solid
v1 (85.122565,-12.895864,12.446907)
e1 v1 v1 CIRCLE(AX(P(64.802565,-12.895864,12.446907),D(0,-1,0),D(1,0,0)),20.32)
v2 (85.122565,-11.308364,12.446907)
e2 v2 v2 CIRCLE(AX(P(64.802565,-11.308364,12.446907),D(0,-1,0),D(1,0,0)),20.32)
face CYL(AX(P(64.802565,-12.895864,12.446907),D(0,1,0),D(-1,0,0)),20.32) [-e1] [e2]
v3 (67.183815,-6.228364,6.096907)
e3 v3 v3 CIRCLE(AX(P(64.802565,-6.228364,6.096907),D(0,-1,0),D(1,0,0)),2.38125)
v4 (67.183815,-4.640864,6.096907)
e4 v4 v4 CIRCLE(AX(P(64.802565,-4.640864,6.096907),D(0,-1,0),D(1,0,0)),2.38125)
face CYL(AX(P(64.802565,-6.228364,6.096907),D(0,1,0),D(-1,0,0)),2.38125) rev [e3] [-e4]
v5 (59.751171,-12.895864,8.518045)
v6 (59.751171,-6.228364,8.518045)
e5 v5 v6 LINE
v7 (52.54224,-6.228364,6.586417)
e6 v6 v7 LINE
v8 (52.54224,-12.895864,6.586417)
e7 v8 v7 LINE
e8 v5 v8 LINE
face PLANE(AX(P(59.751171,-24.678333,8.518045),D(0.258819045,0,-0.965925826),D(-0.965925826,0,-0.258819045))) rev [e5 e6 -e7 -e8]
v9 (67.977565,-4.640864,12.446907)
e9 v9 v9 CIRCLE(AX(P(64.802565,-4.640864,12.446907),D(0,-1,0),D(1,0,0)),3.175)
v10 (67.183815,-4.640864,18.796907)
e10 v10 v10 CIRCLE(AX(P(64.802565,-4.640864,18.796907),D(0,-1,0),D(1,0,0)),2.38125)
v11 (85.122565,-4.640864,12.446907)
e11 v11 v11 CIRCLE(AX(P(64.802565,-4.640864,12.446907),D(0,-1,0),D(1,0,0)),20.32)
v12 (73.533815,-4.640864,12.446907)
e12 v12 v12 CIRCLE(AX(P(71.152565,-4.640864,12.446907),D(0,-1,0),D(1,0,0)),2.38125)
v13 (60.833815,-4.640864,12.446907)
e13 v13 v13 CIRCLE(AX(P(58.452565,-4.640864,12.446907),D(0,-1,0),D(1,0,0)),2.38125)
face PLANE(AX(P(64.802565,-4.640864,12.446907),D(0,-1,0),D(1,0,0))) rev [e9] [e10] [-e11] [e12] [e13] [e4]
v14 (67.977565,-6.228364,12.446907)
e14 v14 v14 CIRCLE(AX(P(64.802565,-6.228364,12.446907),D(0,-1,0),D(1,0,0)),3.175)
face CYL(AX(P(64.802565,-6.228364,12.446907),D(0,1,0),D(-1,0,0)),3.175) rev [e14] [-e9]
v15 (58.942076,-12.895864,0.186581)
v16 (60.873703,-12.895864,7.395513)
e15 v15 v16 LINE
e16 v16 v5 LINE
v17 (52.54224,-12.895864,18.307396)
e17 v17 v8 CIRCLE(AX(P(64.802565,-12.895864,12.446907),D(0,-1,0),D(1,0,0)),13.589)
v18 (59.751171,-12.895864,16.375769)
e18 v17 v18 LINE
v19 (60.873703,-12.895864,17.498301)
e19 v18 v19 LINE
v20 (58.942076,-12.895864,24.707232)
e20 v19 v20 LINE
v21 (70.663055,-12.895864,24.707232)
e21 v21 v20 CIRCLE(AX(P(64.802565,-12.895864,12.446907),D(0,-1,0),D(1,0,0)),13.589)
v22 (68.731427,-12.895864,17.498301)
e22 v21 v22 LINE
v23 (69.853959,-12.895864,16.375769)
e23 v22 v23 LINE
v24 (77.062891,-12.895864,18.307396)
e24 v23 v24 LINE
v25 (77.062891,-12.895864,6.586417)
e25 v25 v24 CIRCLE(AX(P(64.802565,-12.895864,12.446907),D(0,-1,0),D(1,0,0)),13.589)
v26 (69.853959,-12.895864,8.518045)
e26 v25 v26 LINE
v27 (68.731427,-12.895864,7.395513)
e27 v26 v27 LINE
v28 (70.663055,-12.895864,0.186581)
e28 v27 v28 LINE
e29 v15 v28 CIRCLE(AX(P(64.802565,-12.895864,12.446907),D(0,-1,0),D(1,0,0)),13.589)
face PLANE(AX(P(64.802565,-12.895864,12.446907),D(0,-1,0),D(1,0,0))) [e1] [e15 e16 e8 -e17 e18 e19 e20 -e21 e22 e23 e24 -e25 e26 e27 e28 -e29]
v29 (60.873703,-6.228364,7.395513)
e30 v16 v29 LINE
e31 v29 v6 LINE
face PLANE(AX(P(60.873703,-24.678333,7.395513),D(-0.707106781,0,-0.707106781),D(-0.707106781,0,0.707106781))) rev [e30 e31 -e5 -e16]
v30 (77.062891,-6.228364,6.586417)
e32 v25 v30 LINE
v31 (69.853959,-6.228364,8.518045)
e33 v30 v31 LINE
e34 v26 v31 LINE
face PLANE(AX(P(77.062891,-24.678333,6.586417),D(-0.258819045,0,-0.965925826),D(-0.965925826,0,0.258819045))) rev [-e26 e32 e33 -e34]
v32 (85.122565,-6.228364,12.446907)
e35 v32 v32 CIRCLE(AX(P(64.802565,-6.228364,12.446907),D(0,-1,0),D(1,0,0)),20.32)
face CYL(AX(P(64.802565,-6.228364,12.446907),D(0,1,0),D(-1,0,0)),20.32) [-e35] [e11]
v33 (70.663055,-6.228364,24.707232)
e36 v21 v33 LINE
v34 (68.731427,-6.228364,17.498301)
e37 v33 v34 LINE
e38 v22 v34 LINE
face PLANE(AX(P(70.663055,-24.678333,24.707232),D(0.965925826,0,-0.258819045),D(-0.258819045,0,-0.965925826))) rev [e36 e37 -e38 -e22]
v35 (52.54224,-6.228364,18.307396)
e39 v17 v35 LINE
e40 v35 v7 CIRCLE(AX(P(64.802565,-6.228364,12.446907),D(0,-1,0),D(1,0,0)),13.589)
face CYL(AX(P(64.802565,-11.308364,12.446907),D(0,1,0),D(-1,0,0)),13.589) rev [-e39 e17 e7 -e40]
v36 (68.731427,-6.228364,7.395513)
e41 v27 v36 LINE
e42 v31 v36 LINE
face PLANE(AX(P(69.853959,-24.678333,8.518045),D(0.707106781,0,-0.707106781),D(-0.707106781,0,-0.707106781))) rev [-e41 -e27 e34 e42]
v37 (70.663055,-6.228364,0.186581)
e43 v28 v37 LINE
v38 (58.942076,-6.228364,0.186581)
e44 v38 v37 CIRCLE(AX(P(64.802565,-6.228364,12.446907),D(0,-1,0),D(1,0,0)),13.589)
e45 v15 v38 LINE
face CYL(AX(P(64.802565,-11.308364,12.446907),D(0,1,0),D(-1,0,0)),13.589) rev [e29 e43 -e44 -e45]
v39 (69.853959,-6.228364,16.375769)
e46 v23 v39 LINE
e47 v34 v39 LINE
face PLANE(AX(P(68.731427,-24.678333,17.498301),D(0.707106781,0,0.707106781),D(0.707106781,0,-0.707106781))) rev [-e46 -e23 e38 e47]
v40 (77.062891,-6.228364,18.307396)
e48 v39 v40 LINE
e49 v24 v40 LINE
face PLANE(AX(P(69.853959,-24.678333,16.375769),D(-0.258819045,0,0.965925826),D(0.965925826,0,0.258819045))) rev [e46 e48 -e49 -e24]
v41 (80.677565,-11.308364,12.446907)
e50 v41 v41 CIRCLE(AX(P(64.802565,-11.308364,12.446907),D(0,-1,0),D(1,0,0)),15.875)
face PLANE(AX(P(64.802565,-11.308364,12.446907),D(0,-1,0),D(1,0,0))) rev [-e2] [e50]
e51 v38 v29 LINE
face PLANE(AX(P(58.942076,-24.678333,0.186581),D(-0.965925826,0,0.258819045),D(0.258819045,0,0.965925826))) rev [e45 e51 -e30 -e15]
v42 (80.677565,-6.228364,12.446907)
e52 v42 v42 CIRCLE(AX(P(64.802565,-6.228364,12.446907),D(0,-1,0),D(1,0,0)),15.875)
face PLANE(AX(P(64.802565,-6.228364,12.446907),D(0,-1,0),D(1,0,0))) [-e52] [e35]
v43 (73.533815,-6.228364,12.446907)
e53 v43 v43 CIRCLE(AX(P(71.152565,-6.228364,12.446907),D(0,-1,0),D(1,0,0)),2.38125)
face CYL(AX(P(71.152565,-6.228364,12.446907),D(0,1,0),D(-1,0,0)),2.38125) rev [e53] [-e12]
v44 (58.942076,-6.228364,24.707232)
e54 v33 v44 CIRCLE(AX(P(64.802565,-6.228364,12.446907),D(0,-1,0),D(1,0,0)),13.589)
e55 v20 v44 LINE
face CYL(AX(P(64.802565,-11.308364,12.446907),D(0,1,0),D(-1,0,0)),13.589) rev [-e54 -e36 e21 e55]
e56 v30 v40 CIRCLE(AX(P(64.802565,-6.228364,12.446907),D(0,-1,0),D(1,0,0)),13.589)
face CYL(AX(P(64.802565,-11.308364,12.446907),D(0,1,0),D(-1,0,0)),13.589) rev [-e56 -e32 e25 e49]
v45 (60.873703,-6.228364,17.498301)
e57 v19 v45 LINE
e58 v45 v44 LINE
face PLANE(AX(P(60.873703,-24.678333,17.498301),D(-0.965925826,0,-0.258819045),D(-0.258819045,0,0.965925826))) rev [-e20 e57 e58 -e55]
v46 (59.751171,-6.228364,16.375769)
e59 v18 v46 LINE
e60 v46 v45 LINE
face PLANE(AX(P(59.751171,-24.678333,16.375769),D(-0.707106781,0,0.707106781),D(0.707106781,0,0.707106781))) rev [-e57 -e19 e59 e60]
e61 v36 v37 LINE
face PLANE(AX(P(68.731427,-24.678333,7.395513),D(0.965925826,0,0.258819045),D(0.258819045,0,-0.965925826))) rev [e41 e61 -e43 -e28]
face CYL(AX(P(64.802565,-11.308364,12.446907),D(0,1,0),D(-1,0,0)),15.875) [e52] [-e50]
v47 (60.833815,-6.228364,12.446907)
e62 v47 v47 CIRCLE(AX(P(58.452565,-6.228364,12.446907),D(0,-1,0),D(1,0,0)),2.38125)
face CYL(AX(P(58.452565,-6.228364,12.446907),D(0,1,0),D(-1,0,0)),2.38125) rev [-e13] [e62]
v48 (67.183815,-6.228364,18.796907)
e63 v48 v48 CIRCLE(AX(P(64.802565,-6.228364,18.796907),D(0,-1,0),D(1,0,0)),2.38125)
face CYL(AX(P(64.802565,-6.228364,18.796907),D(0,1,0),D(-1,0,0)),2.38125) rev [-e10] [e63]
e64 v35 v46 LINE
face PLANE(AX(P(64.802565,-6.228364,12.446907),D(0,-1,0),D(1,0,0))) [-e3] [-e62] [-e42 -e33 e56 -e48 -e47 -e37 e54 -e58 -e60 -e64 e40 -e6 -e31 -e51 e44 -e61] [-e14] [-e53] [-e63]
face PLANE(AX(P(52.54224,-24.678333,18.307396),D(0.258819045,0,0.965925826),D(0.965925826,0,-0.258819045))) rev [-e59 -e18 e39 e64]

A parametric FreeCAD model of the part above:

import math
import FreeCAD as App
import Part
import Sketcher

V = App.Vector
Q = App.Units.Quantity

doc = App.newDocument("Part")
body = doc.addObject("PartDesign::Body", "Body")

# Sketch on XZ plane
sketch1 = body.newObject("Sketcher::SketchObject", "Sketch")
sketch1.AttachmentSupport = (doc.getObject("XZ_Plane"), [""])
sketch1.MapMode = "FlatFace"
sketch1.AttachmentOffset = App.Placement(V(0, 0, 4.640864), App.Rotation())
sketch1.addGeometry([
    Part.Circle(V(64.8, 12.4, 0), V(0, 0, 1), 20.3),  # 0
    Part.Circle(V(64.8, 6.1, 0), V(0, 0, 1), 2.4),  # 1
    Part.Circle(V(58.5, 12.4, 0), V(0, 0, 1), 2.4),  # 2
    Part.Circle(V(64.8, 12.4, 0), V(0, 0, 1), 3.2),  # 3
    Part.Circle(V(64.8, 18.8, 0), V(0, 0, 1), 2.4),  # 4
    Part.Circle(V(71.2, 12.4, 0), V(0, 0, 1), 2.4),  # 5
], False)
sketch1.addConstraint([
    Sketcher.Constraint("Coincident", 3, 3, 0, 3),
    Sketcher.Constraint("Equal", 1, 2),
    Sketcher.Constraint("Equal", 2, 4),
    Sketcher.Constraint("Equal", 4, 5),
    Sketcher.Constraint("Horizontal", 0, 3, 2, 3),
    Sketcher.Constraint("Horizontal", 3, 3, 5, 3),
    Sketcher.Constraint("Vertical", 0, 3, 1, 3),
    Sketcher.Constraint("Vertical", 3, 3, 4, 3),
    Sketcher.Constraint("Diameter", 0, Q("1.6 in")),
    Sketcher.Constraint("Diameter", 3, Q("0.25 in")),
    Sketcher.Constraint("Diameter", 1, Q("0.1875 in")),
    Sketcher.Constraint("DistanceY", 1, 3, 4, 3, Q("0.5 in")),
    Sketcher.Constraint("DistanceX", 2, 3, 5, 3, Q("0.5 in")),
    Sketcher.Constraint("DistanceY", 1, 3, 0, 3, Q("0.25 in")),
    Sketcher.Constraint("DistanceX", 2, 3, 0, 3, Q("0.25 in")),
    Sketcher.Constraint("DistanceX", -1, 1, 0, 3, Q("64.802565 mm")),
    Sketcher.Constraint("DistanceY", -1, 1, 0, 3, Q("12.446907 mm")),
])
pad1 = body.newObject("PartDesign::Pad", "Pad")
pad1.Profile = sketch1
pad1.Length = Q("0.0625 in")

# Sketch on XZ plane
sketch2 = body.newObject("Sketcher::SketchObject", "Sketch001")
sketch2.AttachmentSupport = (doc.getObject("XZ_Plane"), [""])
sketch2.MapMode = "FlatFace"
sketch2.AttachmentOffset = App.Placement(V(0, 0, 6.228364), App.Rotation())
sketch2.addGeometry([
    Part.Circle(V(65, 12, 0), V(0, 0, 1), 16),
    Part.Circle(V(65, 12, 0), V(0, 0, 1), 14),
], False)
sketch2.addConstraint([
    Sketcher.Constraint("Coincident", 1, 3, 0, 3),
    Sketcher.Constraint("Diameter", 0, Q("1.25 in")),
    Sketcher.Constraint("Diameter", 1, Q("1.07 in")),
    Sketcher.Constraint("DistanceX", -1, 1, 0, 3, Q("64.802565 mm")),
    Sketcher.Constraint("DistanceY", -1, 1, 0, 3, Q("12.446907 mm")),
])
pad2 = body.newObject("PartDesign::Pad", "Pad001")
pad2.Profile = sketch2
pad2.Length = Q("0.2 in")

# Sketch on XZ plane
sketch3 = body.newObject("Sketcher::SketchObject", "Sketch002")
sketch3.AttachmentSupport = (doc.getObject("XZ_Plane"), [""])
sketch3.MapMode = "FlatFace"
sketch3.AttachmentOffset = App.Placement(V(0, 0, 11.308364), App.Rotation())
sketch3.addGeometry([
    Part.Circle(V(65, 12, 0), V(0, 0, 1), 20),
    Part.Circle(V(65, 12, 0), V(0, 0, 1), 14),
], False)
sketch3.addConstraint([
    Sketcher.Constraint("Coincident", 1, 3, 0, 3),
    Sketcher.Constraint("Diameter", 0, Q("1.6 in")),
    Sketcher.Constraint("Diameter", 1, Q("1.07 in")),
    Sketcher.Constraint("DistanceX", -1, 1, 0, 3, Q("64.802565 mm")),
    Sketcher.Constraint("DistanceY", -1, 1, 0, 3, Q("12.446907 mm")),
])
pad3 = body.newObject("PartDesign::Pad", "Pad002")
pad3.Profile = sketch3
pad3.Length = Q("0.0625 in")

# Sketch on XZ plane
sketch4 = body.newObject("Sketcher::SketchObject", "Sketch003")
sketch4.AttachmentSupport = (doc.getObject("XZ_Plane"), [""])
sketch4.MapMode = "FlatFace"
sketch4.AttachmentOffset = App.Placement(V(0, 0, 6.228364), App.Rotation())
sketch4.addGeometry([
    Part.LineSegment(V(52.5, 18.3, 0), V(59.8, 16.4, 0)),  # 0
    Part.LineSegment(V(59.8, 16.4, 0), V(60.9, 17.5, 0)),  # 1
    Part.LineSegment(V(60.9, 17.5, 0), V(58.9, 24.7, 0)),  # 2
    Part.ArcOfCircle(Part.Circle(V(64.8, 12.4, 0), V(0, 0, 1), 13.6), math.radians(116), math.radians(154)),  # 3
    Part.LineSegment(V(70.7, 24.7, 0), V(68.7, 17.5, 0)),  # 4
    Part.LineSegment(V(68.7, 17.5, 0), V(69.9, 16.4, 0)),  # 5
    Part.LineSegment(V(69.9, 16.4, 0), V(77.1, 18.3, 0)),  # 6
    Part.ArcOfCircle(Part.Circle(V(64.8, 12.4, 0), V(0, 0, 1), 13.6), math.radians(26), math.radians(64)),  # 7
    Part.LineSegment(V(77.1, 6.6, 0), V(69.9, 8.5, 0)),  # 8
    Part.LineSegment(V(69.9, 8.5, 0), V(68.7, 7.4, 0)),  # 9
    Part.LineSegment(V(68.7, 7.4, 0), V(70.7, 0.2, 0)),  # 10
    Part.ArcOfCircle(Part.Circle(V(64.8, 12.4, 0), V(0, 0, 1), 13.6), math.radians(-64), math.radians(-26)),  # 11
    Part.LineSegment(V(58.9, 0.2, 0), V(60.9, 7.4, 0)),  # 12
    Part.LineSegment(V(60.9, 7.4, 0), V(59.8, 8.5, 0)),  # 13
    Part.LineSegment(V(59.8, 8.5, 0), V(52.5, 6.6, 0)),  # 14
    Part.ArcOfCircle(Part.Circle(V(64.8, 12.4, 0), V(0, 0, 1), 13.6), math.radians(-154), math.radians(-116)),  # 15
], False)
sketch4.addConstraint([
    Sketcher.Constraint("Coincident", 0, 2, 1, 1),
    Sketcher.Constraint("Coincident", 1, 2, 2, 1),
    Sketcher.Constraint("Coincident", 2, 2, 3, 1),
    Sketcher.Constraint("Coincident", 3, 2, 0, 1),
    Sketcher.Constraint("Coincident", 4, 2, 5, 1),
    Sketcher.Constraint("Coincident", 5, 2, 6, 1),
    Sketcher.Constraint("Coincident", 6, 2, 7, 1),
    Sketcher.Constraint("Coincident", 7, 2, 4, 1),
    Sketcher.Constraint("Coincident", 8, 2, 9, 1),
    Sketcher.Constraint("Coincident", 9, 2, 10, 1),
    Sketcher.Constraint("Coincident", 10, 2, 11, 1),
    Sketcher.Constraint("Coincident", 11, 2, 8, 1),
    Sketcher.Constraint("Coincident", 12, 2, 13, 1),
    Sketcher.Constraint("Coincident", 13, 2, 14, 1),
    Sketcher.Constraint("Coincident", 14, 2, 15, 1),
    Sketcher.Constraint("Coincident", 15, 2, 12, 1),
    Sketcher.Constraint("Coincident", 7, 3, 3, 3),
    Sketcher.Constraint("Coincident", 11, 3, 3, 3),
    Sketcher.Constraint("Coincident", 15, 3, 3, 3),
    Sketcher.Constraint("Equal", 3, 7),
    Sketcher.Constraint("Equal", 7, 11),
    Sketcher.Constraint("Equal", 11, 15),
    Sketcher.Constraint("Perpendicular", 0, 4),
    Sketcher.Constraint("Perpendicular", 1, 5),
    Sketcher.Constraint("Perpendicular", 2, 6),
    Sketcher.Constraint("Perpendicular", 4, 8),
    Sketcher.Constraint("Perpendicular", 5, 9),
    Sketcher.Constraint("Perpendicular", 6, 10),
    Sketcher.Constraint("Perpendicular", 8, 12),
    Sketcher.Constraint("Perpendicular", 9, 13),
    Sketcher.Constraint("Perpendicular", 10, 14),
    Sketcher.Constraint("Horizontal", 1, 2, 4, 2),
    Sketcher.Constraint("Horizontal", 0, 2, 5, 2),
    Sketcher.Constraint("Horizontal", 3, 2, 6, 2),
    Sketcher.Constraint("Horizontal", 2, 2, 7, 2),
    Sketcher.Constraint("Horizontal", 9, 2, 12, 2),
    Sketcher.Constraint("Horizontal", 8, 2, 13, 2),
    Sketcher.Constraint("Horizontal", 11, 2, 14, 2),
    Sketcher.Constraint("Vertical", 5, 2, 8, 2),
    Sketcher.Constraint("Vertical", 4, 2, 9, 2),
    Sketcher.Constraint("Vertical", 7, 2, 10, 2),
    Sketcher.Constraint("Vertical", 1, 2, 12, 2),
    Sketcher.Constraint("Equal", 0, 2),
    Sketcher.Constraint("Angle", 0, Q("-15 deg")),
    Sketcher.Constraint("Radius", 3, Q("0.535 in")),
    Sketcher.Constraint("Distance", 1, Q("0.0625 in")),
    Sketcher.Constraint("DistanceY", -1, 1, 1, 2, Q("17.498301 mm")),
    Sketcher.Constraint("DistanceX", -1, 1, 0, 2, Q("59.751171 mm")),
    Sketcher.Constraint("DistanceX", -1, 1, 3, 2, Q("52.54224 mm")),
])
pad4 = body.newObject("PartDesign::Pad", "Pad003")
pad4.Profile = sketch4
pad4.Length = Q("0.2625 in")

doc.recompute()
